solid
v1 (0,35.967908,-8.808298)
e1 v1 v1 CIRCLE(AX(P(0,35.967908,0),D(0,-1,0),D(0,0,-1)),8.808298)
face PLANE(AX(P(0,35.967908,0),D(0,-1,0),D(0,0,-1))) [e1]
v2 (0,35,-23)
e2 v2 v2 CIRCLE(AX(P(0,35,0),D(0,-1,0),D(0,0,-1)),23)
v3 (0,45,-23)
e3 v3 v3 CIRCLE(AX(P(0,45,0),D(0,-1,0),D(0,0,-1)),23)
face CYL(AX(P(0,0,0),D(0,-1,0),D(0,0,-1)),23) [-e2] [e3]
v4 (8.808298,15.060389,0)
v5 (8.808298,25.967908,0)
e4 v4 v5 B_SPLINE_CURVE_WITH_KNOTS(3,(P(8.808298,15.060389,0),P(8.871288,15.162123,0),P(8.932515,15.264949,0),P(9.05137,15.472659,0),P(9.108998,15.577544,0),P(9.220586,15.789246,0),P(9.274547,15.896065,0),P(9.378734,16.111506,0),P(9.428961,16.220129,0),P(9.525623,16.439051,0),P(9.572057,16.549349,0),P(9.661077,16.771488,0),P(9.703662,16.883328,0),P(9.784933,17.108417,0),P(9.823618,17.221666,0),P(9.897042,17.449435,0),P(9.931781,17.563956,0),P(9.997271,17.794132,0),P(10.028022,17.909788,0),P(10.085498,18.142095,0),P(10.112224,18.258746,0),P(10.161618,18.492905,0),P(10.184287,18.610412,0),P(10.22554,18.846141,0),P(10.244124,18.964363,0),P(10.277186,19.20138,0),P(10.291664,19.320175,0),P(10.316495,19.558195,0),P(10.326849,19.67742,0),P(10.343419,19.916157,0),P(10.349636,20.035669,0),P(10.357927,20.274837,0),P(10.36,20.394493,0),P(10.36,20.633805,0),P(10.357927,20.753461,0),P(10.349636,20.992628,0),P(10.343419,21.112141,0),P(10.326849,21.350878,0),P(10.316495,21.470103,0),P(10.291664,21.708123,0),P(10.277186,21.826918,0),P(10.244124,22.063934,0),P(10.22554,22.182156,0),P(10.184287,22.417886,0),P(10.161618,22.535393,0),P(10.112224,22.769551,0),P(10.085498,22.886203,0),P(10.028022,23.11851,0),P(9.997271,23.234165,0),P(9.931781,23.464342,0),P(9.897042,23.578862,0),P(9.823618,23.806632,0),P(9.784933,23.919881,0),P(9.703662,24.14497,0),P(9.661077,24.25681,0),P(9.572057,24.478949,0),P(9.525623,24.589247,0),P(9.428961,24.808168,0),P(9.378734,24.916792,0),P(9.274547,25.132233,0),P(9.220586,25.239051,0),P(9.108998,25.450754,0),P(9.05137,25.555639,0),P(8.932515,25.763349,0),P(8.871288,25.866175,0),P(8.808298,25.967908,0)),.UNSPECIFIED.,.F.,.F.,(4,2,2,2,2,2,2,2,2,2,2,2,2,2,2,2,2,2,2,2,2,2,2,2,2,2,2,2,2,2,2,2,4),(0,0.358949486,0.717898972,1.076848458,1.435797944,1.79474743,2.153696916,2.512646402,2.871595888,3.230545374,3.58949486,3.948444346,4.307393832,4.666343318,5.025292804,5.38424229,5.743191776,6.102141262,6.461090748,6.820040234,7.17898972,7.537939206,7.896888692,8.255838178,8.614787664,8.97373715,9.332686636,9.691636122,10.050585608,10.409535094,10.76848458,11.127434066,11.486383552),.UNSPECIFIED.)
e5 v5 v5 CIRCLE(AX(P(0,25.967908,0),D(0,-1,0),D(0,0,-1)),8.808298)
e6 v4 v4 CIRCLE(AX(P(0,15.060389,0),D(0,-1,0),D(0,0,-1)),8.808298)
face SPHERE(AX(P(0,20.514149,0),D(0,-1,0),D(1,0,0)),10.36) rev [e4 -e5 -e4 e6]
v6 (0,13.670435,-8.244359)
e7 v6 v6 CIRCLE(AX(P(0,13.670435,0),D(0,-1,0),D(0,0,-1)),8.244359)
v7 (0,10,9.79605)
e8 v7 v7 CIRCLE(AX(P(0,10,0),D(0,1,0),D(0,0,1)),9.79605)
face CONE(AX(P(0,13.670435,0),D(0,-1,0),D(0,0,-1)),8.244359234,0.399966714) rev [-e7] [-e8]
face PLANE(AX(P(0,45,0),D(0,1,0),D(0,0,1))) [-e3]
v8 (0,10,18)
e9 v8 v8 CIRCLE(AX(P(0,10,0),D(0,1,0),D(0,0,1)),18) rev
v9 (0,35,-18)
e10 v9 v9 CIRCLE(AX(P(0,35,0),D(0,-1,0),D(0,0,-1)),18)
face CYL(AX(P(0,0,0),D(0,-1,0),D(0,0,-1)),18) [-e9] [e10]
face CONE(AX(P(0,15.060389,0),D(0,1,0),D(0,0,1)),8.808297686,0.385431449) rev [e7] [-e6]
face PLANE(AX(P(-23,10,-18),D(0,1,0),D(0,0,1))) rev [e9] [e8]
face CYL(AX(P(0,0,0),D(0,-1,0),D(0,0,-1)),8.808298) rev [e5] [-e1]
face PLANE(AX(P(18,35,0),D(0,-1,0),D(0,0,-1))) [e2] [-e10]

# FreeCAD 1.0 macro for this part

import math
import FreeCAD as App
import Part
import Sketcher
Q = App.Units.Quantity

doc = App.newDocument("Part")
body = doc.addObject("PartDesign::Body", "Body")

# Sketch on XY plane
sketch1 = body.newObject("Sketcher::SketchObject", "Sketch")
sketch1.AttachmentSupport = (doc.getObject("XY_Plane"), [""])
sketch1.MapMode = "FlatFace"
sketch1.addGeometry([
    Part.LineSegment(App.Vector(8.8, 15.1, 0), App.Vector(8.2, 13.7, 0)),  # 0
    Part.LineSegment(App.Vector(8.2, 13.7, 0), App.Vector(16.1, -5, 0)),  # 1
    Part.LineSegment(App.Vector(16.1, -5, 0), App.Vector(18, -5, 0)),  # 2
    Part.LineSegment(App.Vector(18, -5, 0), App.Vector(18, 35, 0)),  # 3
    Part.LineSegment(App.Vector(18, 35, 0), App.Vector(23, 35, 0)),  # 4
    Part.LineSegment(App.Vector(23, 35, 0), App.Vector(23, 45, 0)),  # 5
    Part.LineSegment(App.Vector(23, 45, 0), App.Vector(0, 45, 0)),  # 6
    Part.LineSegment(App.Vector(0, 45, 0), App.Vector(0, 36, 0)),  # 7
    Part.LineSegment(App.Vector(0, 36, 0), App.Vector(8.8, 36, 0)),  # 8
    Part.LineSegment(App.Vector(8.8, 36, 0), App.Vector(8.8, 26, 0)),  # 9
    Part.ArcOfCircle(Part.Circle(App.Vector(0, 20.5, 0), App.Vector(0, 0, 1), 10.4), math.radians(-32), math.radians(32)),  # 10
], False)
sketch1.addConstraint([
    Sketcher.Constraint("Coincident", 0, 2, 1, 1),
    Sketcher.Constraint("Coincident", 1, 2, 2, 1),
    Sketcher.Constraint("Coincident", 2, 2, 3, 1),
    Sketcher.Constraint("Coincident", 3, 2, 4, 1),
    Sketcher.Constraint("Coincident", 4, 2, 5, 1),
    Sketcher.Constraint("Coincident", 5, 2, 6, 1),
    Sketcher.Constraint("Coincident", 6, 2, 7, 1),
    Sketcher.Constraint("Coincident", 7, 2, 8, 1),
    Sketcher.Constraint("Coincident", 8, 2, 9, 1),
    Sketcher.Constraint("Coincident", 9, 2, 10, 2),
    Sketcher.Constraint("Coincident", 10, 1, 0, 1),
    Sketcher.Constraint("Horizontal", 2),
    Sketcher.Constraint("Vertical", 3),
    Sketcher.Constraint("Horizontal", 4),
    Sketcher.Constraint("Vertical", 5),
    Sketcher.Constraint("Horizontal", 6),
    Sketcher.Constraint("Vertical", 7),
    Sketcher.Constraint("Horizontal", 8),
    Sketcher.Constraint("Vertical", 9),
    Sketcher.Constraint("PointOnObject", 10, 3, -2),
    Sketcher.Constraint("PointOnObject", 6, 2, -2),
    Sketcher.Constraint("Vertical", 9, 2, 10, 1),
    Sketcher.Constraint("Equal", 5, 9),
    Sketcher.Constraint("DistanceX", 4, 1, 4, 2, Q("5 mm")),
    Sketcher.Constraint("DistanceX", 6, 2, 6, 1, Q("23 mm")),
    Sketcher.Constraint("DistanceY", 3, 1, 3, 2, Q("40 mm")),
    Sketcher.Constraint("DistanceY", 5, 1, 5, 2, Q("10 mm")),
    Sketcher.Constraint("Radius", 10, Q("10.36 mm")),
    Sketcher.Constraint("DistanceY", 1, 2, -1, 1, Q("5 mm")),
    Sketcher.Constraint("Distance", 0, Q("1.5 mm")),
    Sketcher.Constraint("DistanceX", 0, 2, 1, 2, Q("7.893001 mm")),
    Sketcher.Constraint("DistanceX", 2, 1, 2, 2, Q("1.86264 mm")),
    Sketcher.Constraint("DistanceY", 7, 2, 7, 1, Q("9.032092 mm")),
    Sketcher.Constraint("Distance", 1, Q("20.270289 mm")),
])
revolution = body.newObject("PartDesign::Revolution", "Revolution")
revolution.Profile = sketch1
revolution.ReferenceAxis = (sketch1, ["V_Axis"])
revolution.Angle = 360

# Sketch on YZ plane
sketch2 = body.newObject("Sketcher::SketchObject", "Sketch001")
sketch2.AttachmentSupport = (doc.getObject("YZ_Plane"), [""])
sketch2.MapMode = "FlatFace"
sketch2.addGeometry([
    Part.LineSegment(App.Vector(10, 18, 0), App.Vector(-5, 18, 0)),
    Part.LineSegment(App.Vector(-5, 18, 0), App.Vector(-5, -18, 0)),
    Part.LineSegment(App.Vector(-5, -18, 0), App.Vector(10, -18, 0)),
    Part.LineSegment(App.Vector(10, -18, 0), App.Vector(10, 18, 0)),
], False)
sketch2.addConstraint([
    Sketcher.Constraint("Coincident", 0, 2, 1, 1),
    Sketcher.Constraint("Coincident", 1, 2, 2, 1),
    Sketcher.Constraint("Coincident", 2, 2, 3, 1),
    Sketcher.Constraint("Coincident", 3, 2, 0, 1),
    Sketcher.Constraint("Horizontal", 0),
    Sketcher.Constraint("Vertical", 1),
    Sketcher.Constraint("Horizontal", 2),
    Sketcher.Constraint("Vertical", 3),
    Sketcher.Constraint("DistanceX", 0, 2, 0, 1, Q("15 mm")),
    Sketcher.Constraint("DistanceY", 1, 2, 1, 1, Q("36 mm")),
    Sketcher.Constraint("DistanceX", 0, 2, -1, 1, Q("5 mm")),
    Sketcher.Constraint("DistanceY", -1, 1, 0, 2, Q("18 mm")),
])
pocket1 = body.newObject("PartDesign::Pocket", "Pocket")
pocket1.Profile = sketch2
pocket1.Type = "ThroughAll"
pocket1.Midplane = True

doc.recompute()
